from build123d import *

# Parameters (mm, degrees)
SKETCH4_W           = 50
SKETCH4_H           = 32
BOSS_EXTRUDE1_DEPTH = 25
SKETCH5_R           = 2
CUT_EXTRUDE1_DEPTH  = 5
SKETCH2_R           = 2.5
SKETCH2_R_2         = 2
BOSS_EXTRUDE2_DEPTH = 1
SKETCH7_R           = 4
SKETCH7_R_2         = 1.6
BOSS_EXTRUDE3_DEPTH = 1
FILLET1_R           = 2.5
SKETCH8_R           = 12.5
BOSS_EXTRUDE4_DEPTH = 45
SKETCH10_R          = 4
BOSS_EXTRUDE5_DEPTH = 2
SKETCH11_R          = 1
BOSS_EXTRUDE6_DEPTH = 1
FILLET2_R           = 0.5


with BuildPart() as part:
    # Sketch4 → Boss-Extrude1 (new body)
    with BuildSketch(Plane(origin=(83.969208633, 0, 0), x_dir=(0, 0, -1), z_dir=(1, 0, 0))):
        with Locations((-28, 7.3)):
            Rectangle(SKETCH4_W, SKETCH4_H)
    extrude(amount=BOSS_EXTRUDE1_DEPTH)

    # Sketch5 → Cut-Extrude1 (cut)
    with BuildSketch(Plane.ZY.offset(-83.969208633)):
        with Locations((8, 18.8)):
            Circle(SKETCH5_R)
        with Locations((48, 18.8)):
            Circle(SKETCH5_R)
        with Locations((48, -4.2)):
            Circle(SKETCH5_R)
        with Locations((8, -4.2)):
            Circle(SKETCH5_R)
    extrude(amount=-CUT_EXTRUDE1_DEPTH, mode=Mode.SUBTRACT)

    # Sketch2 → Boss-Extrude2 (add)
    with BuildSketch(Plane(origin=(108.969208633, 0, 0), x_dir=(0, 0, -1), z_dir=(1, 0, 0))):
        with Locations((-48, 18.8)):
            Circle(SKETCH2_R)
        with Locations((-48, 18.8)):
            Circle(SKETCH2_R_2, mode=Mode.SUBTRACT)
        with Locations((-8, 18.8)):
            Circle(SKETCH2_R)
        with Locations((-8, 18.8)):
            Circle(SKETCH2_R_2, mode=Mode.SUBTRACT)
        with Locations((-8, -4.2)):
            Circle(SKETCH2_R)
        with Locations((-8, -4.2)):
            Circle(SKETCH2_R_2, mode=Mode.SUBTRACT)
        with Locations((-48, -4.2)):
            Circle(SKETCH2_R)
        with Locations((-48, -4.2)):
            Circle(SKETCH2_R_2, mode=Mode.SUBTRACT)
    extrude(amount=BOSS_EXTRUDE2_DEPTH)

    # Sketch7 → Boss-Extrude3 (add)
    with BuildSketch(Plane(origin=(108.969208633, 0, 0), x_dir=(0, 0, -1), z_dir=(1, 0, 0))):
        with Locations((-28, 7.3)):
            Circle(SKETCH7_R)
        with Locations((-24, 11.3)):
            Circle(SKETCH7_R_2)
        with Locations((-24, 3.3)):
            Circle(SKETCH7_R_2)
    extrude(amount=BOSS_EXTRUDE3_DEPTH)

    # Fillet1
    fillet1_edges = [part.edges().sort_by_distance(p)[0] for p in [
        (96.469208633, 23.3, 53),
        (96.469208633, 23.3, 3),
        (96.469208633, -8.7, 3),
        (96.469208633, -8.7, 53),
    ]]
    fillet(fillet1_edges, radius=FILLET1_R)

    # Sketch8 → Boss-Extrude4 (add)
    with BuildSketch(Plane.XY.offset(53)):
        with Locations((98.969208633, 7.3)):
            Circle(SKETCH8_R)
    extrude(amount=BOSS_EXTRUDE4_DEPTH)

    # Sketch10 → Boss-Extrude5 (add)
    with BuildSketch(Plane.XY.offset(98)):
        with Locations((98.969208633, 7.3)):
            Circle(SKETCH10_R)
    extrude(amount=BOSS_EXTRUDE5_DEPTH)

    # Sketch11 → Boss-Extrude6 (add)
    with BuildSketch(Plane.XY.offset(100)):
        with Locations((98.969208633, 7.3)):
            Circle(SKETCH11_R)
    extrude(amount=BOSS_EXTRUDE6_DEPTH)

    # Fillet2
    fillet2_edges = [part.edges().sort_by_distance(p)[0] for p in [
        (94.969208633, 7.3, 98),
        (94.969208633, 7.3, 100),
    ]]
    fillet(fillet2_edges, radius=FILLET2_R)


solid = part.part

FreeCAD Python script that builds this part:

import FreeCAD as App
import Part
import Sketcher
from FreeCAD import Vector
Q = App.Units.Quantity


def edges_at(feature, points):
    """Names of the edges that pass closest to the given points."""
    edges = feature.Shape.Edges
    near = lambda p: min(range(len(edges)), key=lambda i: edges[i].distToShape(Part.Vertex(*p))[0])
    return sorted({f"Edge{near(p) + 1}" for p in points})


def add_polygon(sketch, points):
    """Adds a closed chain of lines whose ends are joined by coincident constraints."""
    first, n = sketch.GeometryCount, len(points)
    for a, b in zip(points, points[1:] + points[:1]):
        sketch.addGeometry(Part.LineSegment(App.Vector(*a, 0), App.Vector(*b, 0)), False)
    for i in range(n):
        sketch.addConstraint(Sketcher.Constraint("Coincident", first + i, 2, first + (i + 1) % n, 1))

doc = App.newDocument("Part")
body = doc.addObject("PartDesign::Body", "Body")

sketch1 = body.newObject("Sketcher::SketchObject", "Sketch")
sketch1.AttachmentSupport = (doc.getObject("YZ_Plane"), [""])
sketch1.MapMode = "FlatFace"
sketch1.AttachmentOffset = App.Placement(Vector(0, 0, 83.969209), App.Rotation())
add_polygon(sketch1, [(23, 53), (-9, 53), (-9, 3), (23, 3)])
sketch1.addConstraint([
    Sketcher.Constraint("Horizontal", 0),
    Sketcher.Constraint("Vertical", 1),
    Sketcher.Constraint("Horizontal", 2),
    Sketcher.Constraint("Vertical", 3),
    Sketcher.Constraint("DistanceX", 0, 2, 0, 1, Q("32 mm")),
    Sketcher.Constraint("DistanceY", 1, 2, 1, 1, Q("50 mm")),
    Sketcher.Constraint("DistanceY", -1, 1, 0, 2, Q("53 mm")),
    Sketcher.Constraint("DistanceX", 0, 2, -1, 1, Q("8.7 mm")),
])
pad1 = body.newObject("PartDesign::Pad", "Pad")
pad1.Profile = sketch1
pad1.Length = 25

sketch2 = body.newObject("Sketcher::SketchObject", "Sketch001")
sketch2.AttachmentSupport = (doc.getObject("YZ_Plane"), [""])
sketch2.MapMode = "FlatFace"
sketch2.AttachmentOffset = App.Placement(Vector(0, 0, 83.969209), App.Rotation())
sketch2.addGeometry([
    Part.Circle(Vector(18.8, 8, 0), Vector(0, 0, 1), 2),
    Part.Circle(Vector(18.8, 48, 0), Vector(0, 0, 1), 2),
    Part.Circle(Vector(-4.2, 48, 0), Vector(0, 0, 1), 2),
    Part.Circle(Vector(-4.2, 8, 0), Vector(0, 0, 1), 2),
], False)
sketch2.addConstraint([
    Sketcher.Constraint("Equal", 0, 1),
    Sketcher.Constraint("Equal", 1, 2),
    Sketcher.Constraint("Equal", 2, 3),
    Sketcher.Constraint("Horizontal", 1, 3, 2, 3),
    Sketcher.Constraint("Horizontal", 0, 3, 3, 3),
    Sketcher.Constraint("Vertical", 0, 3, 1, 3),
    Sketcher.Constraint("Vertical", 2, 3, 3, 3),
    Sketcher.Constraint("Diameter", 0, Q("4 mm")),
    Sketcher.Constraint("DistanceY", -1, 1, 0, 3, Q("8 mm")),
    Sketcher.Constraint("DistanceY", -1, 1, 1, 3, Q("48 mm")),
    Sketcher.Constraint("DistanceX", 2, 3, 1, 3, Q("23 mm")),
    Sketcher.Constraint("DistanceX", -1, 1, 0, 3, Q("18.8 mm")),
])
pocket1 = body.newObject("PartDesign::Pocket", "Pocket")
pocket1.Profile = sketch2
pocket1.Length = 5
pocket1.Reversed = True

sketch3 = body.newObject("Sketcher::SketchObject", "Sketch002")
sketch3.AttachmentSupport = (doc.getObject("YZ_Plane"), [""])
sketch3.MapMode = "FlatFace"
sketch3.AttachmentOffset = App.Placement(Vector(0, 0, 108.969209), App.Rotation())
sketch3.addGeometry([
    Part.Circle(Vector(18.8, 48, 0), Vector(0, 0, 1), 2.5),
    Part.Circle(Vector(18.8, 48, 0), Vector(0, 0, 1), 2),
    Part.Circle(Vector(18.8, 8, 0), Vector(0, 0, 1), 2.5),
    Part.Circle(Vector(18.8, 8, 0), Vector(0, 0, 1), 2),
    Part.Circle(Vector(-4.2, 8, 0), Vector(0, 0, 1), 2.5),
    Part.Circle(Vector(-4.2, 8, 0), Vector(0, 0, 1), 2),
    Part.Circle(Vector(-4.2, 48, 0), Vector(0, 0, 1), 2.5),
    Part.Circle(Vector(-4.2, 48, 0), Vector(0, 0, 1), 2),
], False)
sketch3.addConstraint([
    Sketcher.Constraint("Coincident", 1, 3, 0, 3),
    Sketcher.Constraint("Coincident", 3, 3, 2, 3),
    Sketcher.Constraint("Coincident", 5, 3, 4, 3),
    Sketcher.Constraint("Coincident", 7, 3, 6, 3),
    Sketcher.Constraint("Equal", 0, 2),
    Sketcher.Constraint("Equal", 1, 3),
    Sketcher.Constraint("Equal", 2, 4),
    Sketcher.Constraint("Equal", 3, 5),
    Sketcher.Constraint("Equal", 4, 6),
    Sketcher.Constraint("Equal", 5, 7),
    Sketcher.Constraint("Horizontal", 3, 3, 4, 3),
    Sketcher.Constraint("Horizontal", 1, 3, 6, 3),
    Sketcher.Constraint("Vertical", 1, 3, 2, 3),
    Sketcher.Constraint("Vertical", 5, 3, 6, 3),
    Sketcher.Constraint("Diameter", 0, Q("5 mm")),
    Sketcher.Constraint("Diameter", 1, Q("4 mm")),
    Sketcher.Constraint("DistanceY", -1, 1, 0, 3, Q("48 mm")),
    Sketcher.Constraint("DistanceY", -1, 1, 2, 3, Q("8 mm")),
    Sketcher.Constraint("DistanceX", 4, 3, 2, 3, Q("23 mm")),
    Sketcher.Constraint("DistanceX", -1, 1, 0, 3, Q("18.8 mm")),
])
pad2 = body.newObject("PartDesign::Pad", "Pad001")
pad2.Profile = sketch3
pad2.Length = 1

sketch4 = body.newObject("Sketcher::SketchObject", "Sketch003")
sketch4.AttachmentSupport = (doc.getObject("YZ_Plane"), [""])
sketch4.MapMode = "FlatFace"
sketch4.AttachmentOffset = App.Placement(Vector(0, 0, 108.969209), App.Rotation())
sketch4.addGeometry([
    Part.Circle(Vector(7.3, 28, 0), Vector(0, 0, 1), 4),
    Part.Circle(Vector(11.3, 24, 0), Vector(0, 0, 1), 1.6),
    Part.Circle(Vector(3.3, 24, 0), Vector(0, 0, 1), 1.6),
], False)
sketch4.addConstraint([
    Sketcher.Constraint("Equal", 1, 2),
    Sketcher.Constraint("Horizontal", 1, 3, 2, 3),
    Sketcher.Constraint("Diameter", 0, Q("8 mm")),
    Sketcher.Constraint("Diameter", 1, Q("3.2 mm")),
    Sketcher.Constraint("DistanceY", -1, 1, 0, 3, Q("28 mm")),
    Sketcher.Constraint("DistanceY", -1, 1, 1, 3, Q("24 mm")),
    Sketcher.Constraint("DistanceX", 0, 3, 1, 3, Q("4 mm")),
    Sketcher.Constraint("DistanceX", 2, 3, 0, 3, Q("4 mm")),
    Sketcher.Constraint("DistanceX", -1, 1, 0, 3, Q("7.3 mm")),
])
pad3 = body.newObject("PartDesign::Pad", "Pad002")
pad3.Profile = sketch4
pad3.Length = 1
doc.recompute()

fillet = body.newObject("PartDesign::Fillet", "Fillet")
fillet.Base = (pad3, edges_at(pad3, [
    (96.469, 23.3, 53),
    (96.469, 23.3, 3),
    (96.469, -8.7, 3),
    (96.469, -8.7, 53),
]))
fillet.Radius = 2.5

sketch5 = body.newObject("Sketcher::SketchObject", "Sketch004")
sketch5.AttachmentSupport = (doc.getObject("XY_Plane"), [""])
sketch5.MapMode = "FlatFace"
sketch5.AttachmentOffset = App.Placement(Vector(0, 0, 53), App.Rotation())
sketch5.addGeometry(Part.Circle(Vector(99, 7, 0), Vector(0, 0, 1), 12), False)
sketch5.addConstraint([
    Sketcher.Constraint("Diameter", 0, Q("25 mm")),
    Sketcher.Constraint("DistanceY", -1, 1, 0, 3, Q("7.3 mm")),
    Sketcher.Constraint("DistanceX", -1, 1, 0, 3, Q("98.969209 mm")),
])
pad4 = body.newObject("PartDesign::Pad", "Pad003")
pad4.Profile = sketch5
pad4.Length = 45

sketch6 = body.newObject("Sketcher::SketchObject", "Sketch005")
sketch6.AttachmentSupport = (doc.getObject("XY_Plane"), [""])
sketch6.MapMode = "FlatFace"
sketch6.AttachmentOffset = App.Placement(Vector(0, 0, 98), App.Rotation())
sketch6.addGeometry(Part.Circle(Vector(99, 7.3, 0), Vector(0, 0, 1), 4), False)
sketch6.addConstraint([
    Sketcher.Constraint("Diameter", 0, Q("8 mm")),
    Sketcher.Constraint("DistanceY", -1, 1, 0, 3, Q("7.3 mm")),
    Sketcher.Constraint("DistanceX", -1, 1, 0, 3, Q("98.969209 mm")),
])
pad5 = body.newObject("PartDesign::Pad", "Pad004")
pad5.Profile = sketch6
pad5.Length = 2

sketch7 = body.newObject("Sketcher::SketchObject", "Sketch006")
sketch7.AttachmentSupport = (doc.getObject("XY_Plane"), [""])
sketch7.MapMode = "FlatFace"
sketch7.AttachmentOffset = App.Placement(Vector(0, 0, 100), App.Rotation())
sketch7.addGeometry(Part.Circle(Vector(99, 7.3, 0), Vector(0, 0, 1), 1), False)
sketch7.addConstraint([
    Sketcher.Constraint("Diameter", 0, Q("2 mm")),
    Sketcher.Constraint("DistanceY", -1, 1, 0, 3, Q("7.3 mm")),
    Sketcher.Constraint("DistanceX", -1, 1, 0, 3, Q("98.969209 mm")),
])
pad6 = body.newObject("PartDesign::Pad", "Pad005")
pad6.Profile = sketch7
pad6.Length = 1
doc.recompute()

fillet2 = body.newObject("PartDesign::Fillet", "Fillet001")
fillet2.Base = (pad6, edges_at(pad6, [(94.969, 7.3, 98), (94.969, 7.3, 100)]))
fillet2.Radius = 0.5

doc.recompute()
